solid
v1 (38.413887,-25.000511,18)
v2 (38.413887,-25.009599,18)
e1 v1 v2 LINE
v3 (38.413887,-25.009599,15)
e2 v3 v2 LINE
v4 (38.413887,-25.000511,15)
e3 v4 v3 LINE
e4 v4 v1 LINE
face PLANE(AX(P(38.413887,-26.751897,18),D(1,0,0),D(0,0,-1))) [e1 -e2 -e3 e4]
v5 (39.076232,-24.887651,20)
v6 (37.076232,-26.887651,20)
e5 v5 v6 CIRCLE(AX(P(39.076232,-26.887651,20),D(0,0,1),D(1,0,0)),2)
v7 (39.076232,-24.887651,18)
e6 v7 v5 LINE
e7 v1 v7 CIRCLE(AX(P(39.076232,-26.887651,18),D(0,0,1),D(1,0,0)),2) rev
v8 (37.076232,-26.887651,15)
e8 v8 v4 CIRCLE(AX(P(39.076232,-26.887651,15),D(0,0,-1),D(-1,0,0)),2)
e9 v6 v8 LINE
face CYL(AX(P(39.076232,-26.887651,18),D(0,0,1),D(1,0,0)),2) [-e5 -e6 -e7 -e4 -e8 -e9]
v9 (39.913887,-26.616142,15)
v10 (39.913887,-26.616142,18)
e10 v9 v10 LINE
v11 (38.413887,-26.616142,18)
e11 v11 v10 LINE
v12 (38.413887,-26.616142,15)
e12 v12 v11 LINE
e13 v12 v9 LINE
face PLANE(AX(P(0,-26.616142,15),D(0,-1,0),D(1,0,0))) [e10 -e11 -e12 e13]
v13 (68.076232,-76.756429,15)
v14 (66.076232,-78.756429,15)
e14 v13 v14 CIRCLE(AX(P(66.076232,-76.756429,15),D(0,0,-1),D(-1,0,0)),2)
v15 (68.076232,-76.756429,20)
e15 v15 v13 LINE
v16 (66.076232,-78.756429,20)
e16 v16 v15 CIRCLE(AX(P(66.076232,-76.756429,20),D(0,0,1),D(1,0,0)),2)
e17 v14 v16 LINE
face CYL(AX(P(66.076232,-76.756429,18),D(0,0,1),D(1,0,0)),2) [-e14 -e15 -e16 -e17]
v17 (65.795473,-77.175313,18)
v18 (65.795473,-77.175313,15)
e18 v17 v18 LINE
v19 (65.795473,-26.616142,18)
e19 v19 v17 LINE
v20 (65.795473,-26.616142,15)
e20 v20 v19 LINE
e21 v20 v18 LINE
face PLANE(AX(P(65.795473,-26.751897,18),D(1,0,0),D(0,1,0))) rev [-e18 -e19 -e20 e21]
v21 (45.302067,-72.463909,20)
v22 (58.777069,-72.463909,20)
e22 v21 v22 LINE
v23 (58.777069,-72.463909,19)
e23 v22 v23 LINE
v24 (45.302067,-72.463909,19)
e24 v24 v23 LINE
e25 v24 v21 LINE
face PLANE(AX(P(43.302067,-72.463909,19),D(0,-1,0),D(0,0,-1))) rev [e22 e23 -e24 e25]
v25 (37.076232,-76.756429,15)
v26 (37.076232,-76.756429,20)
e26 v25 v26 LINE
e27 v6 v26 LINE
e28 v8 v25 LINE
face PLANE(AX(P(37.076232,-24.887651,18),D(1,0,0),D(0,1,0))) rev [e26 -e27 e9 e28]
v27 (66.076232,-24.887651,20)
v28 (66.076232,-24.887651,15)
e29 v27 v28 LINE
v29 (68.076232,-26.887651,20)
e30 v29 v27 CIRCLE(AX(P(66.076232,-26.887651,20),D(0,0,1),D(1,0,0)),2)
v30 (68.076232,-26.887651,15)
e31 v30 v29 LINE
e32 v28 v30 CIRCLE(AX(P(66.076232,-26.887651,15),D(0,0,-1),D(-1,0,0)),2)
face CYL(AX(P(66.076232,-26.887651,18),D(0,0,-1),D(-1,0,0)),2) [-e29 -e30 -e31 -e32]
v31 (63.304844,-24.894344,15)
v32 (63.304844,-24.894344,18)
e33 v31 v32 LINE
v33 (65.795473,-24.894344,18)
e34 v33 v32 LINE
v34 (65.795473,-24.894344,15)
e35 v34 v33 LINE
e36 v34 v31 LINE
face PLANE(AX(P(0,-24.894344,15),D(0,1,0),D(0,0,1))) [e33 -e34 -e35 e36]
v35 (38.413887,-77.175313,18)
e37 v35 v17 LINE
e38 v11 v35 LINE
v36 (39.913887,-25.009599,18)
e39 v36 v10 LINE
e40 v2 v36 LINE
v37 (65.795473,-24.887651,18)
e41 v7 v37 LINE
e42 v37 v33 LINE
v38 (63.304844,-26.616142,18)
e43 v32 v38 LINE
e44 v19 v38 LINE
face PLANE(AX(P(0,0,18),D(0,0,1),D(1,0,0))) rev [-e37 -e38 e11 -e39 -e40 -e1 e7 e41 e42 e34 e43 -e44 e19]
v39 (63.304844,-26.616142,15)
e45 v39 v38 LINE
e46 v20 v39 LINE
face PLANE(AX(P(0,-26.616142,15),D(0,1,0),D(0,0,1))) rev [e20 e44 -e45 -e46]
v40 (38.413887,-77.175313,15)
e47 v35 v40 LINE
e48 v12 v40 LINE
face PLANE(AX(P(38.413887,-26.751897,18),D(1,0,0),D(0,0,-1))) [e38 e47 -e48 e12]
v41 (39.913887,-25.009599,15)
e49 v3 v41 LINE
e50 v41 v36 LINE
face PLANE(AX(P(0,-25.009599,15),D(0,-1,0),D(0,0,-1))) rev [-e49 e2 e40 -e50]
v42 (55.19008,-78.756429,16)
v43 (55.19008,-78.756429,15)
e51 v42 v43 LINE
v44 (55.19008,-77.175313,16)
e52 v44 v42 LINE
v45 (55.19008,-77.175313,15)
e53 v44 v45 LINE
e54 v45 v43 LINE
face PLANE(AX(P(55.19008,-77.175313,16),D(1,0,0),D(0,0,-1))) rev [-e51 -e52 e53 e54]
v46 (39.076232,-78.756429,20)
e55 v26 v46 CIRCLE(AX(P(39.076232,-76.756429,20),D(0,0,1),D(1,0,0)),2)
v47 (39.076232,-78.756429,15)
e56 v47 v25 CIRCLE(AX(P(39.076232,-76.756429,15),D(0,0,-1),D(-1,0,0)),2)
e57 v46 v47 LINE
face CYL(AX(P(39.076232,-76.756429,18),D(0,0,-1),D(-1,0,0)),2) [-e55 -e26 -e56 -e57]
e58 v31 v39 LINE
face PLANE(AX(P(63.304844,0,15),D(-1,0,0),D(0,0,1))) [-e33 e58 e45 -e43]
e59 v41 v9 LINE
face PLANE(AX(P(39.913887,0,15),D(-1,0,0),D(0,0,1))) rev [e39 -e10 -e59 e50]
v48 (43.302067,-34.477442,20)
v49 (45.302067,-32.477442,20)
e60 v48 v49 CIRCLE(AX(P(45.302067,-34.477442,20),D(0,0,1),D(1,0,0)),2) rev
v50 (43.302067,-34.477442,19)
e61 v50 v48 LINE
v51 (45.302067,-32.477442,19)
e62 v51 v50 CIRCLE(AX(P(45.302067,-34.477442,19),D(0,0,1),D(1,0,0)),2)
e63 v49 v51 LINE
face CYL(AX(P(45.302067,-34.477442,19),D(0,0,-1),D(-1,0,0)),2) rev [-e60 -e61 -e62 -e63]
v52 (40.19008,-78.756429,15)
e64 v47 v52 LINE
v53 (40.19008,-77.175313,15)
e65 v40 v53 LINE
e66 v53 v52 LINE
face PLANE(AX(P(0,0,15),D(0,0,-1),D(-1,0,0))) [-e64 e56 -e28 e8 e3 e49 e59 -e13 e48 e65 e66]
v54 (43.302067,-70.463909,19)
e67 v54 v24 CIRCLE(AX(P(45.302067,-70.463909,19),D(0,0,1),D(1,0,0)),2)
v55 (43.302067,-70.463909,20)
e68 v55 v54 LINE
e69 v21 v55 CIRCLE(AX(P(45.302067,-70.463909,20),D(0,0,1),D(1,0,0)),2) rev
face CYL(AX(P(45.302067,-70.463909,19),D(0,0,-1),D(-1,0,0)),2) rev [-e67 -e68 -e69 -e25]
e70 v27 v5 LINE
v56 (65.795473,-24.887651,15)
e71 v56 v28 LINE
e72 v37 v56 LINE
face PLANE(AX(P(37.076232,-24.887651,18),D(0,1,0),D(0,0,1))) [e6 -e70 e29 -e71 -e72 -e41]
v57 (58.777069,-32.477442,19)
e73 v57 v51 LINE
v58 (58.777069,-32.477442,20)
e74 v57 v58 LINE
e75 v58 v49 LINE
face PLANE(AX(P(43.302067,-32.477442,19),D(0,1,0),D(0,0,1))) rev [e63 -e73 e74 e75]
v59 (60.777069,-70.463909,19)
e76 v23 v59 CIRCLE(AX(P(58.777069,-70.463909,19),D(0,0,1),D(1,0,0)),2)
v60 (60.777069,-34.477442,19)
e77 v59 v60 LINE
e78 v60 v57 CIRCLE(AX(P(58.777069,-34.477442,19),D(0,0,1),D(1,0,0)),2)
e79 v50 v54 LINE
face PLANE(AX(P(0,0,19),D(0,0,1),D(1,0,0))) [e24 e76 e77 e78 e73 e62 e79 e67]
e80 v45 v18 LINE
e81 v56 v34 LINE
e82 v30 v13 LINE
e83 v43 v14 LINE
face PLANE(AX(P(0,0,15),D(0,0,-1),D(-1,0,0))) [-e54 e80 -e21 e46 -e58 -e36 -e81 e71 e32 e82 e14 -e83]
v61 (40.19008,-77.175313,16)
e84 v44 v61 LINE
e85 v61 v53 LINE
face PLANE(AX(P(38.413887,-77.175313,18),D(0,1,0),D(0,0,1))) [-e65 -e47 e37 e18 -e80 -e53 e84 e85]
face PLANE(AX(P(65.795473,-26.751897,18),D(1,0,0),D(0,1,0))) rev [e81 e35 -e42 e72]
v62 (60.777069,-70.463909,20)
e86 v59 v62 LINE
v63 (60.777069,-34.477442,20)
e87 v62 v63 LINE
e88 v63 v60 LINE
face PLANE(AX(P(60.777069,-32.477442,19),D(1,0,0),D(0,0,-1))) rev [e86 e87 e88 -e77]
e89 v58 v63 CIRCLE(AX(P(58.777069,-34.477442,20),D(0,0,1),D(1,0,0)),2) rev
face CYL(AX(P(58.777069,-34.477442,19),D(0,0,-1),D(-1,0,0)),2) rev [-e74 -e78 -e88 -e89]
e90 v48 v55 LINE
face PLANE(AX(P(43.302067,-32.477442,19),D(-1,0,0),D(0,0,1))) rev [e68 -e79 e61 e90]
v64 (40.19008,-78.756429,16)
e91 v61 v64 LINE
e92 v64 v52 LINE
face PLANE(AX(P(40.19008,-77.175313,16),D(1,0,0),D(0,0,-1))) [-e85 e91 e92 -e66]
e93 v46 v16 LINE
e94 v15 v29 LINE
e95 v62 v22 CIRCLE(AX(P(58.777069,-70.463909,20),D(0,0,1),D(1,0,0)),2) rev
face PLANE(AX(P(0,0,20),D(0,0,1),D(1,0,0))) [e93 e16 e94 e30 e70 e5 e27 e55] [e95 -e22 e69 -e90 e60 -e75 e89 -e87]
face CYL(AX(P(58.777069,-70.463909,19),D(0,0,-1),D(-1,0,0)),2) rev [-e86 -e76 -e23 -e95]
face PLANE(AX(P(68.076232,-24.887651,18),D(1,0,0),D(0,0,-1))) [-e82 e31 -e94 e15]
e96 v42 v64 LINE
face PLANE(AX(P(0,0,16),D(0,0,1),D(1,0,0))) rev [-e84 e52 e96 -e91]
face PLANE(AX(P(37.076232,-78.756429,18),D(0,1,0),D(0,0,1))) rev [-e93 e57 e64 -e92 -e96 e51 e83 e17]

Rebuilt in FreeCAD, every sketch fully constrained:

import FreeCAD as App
import Part
import Sketcher

V = App.Vector
Q = App.Units.Quantity


def edges_at(feature, points):
    """Names of the edges that pass closest to the given points."""
    edges = feature.Shape.Edges
    near = lambda p: min(range(len(edges)), key=lambda i: edges[i].distToShape(Part.Vertex(*p))[0])
    return sorted({f"Edge{near(p) + 1}" for p in points})


def add_polygon(sketch, points):
    """Adds a closed chain of lines whose ends are joined by coincident constraints."""
    first, n = sketch.GeometryCount, len(points)
    for a, b in zip(points, points[1:] + points[:1]):
        sketch.addGeometry(Part.LineSegment(App.Vector(*a, 0), App.Vector(*b, 0)), False)
    for i in range(n):
        sketch.addConstraint(Sketcher.Constraint("Coincident", first + i, 2, first + (i + 1) % n, 1))

doc = App.newDocument("Part")
body = doc.addObject("PartDesign::Body", "Body")

sketch1 = body.newObject("Sketcher::SketchObject", "Sketch")
sketch1.AttachmentSupport = (doc.getObject("XY_Plane"), [""])
sketch1.MapMode = "FlatFace"
sketch1.AttachmentOffset = App.Placement(V(0, 0, 15), App.Rotation())
add_polygon(sketch1, [(37, -25), (37, -79), (68, -79), (68, -25)])
add_polygon(sketch1, [(66, -77), (38, -77), (38, -27), (66, -27)])
sketch1.addConstraint([
    Sketcher.Constraint("Vertical", 0),
    Sketcher.Constraint("Horizontal", 1),
    Sketcher.Constraint("Vertical", 2),
    Sketcher.Constraint("Horizontal", 3),
    Sketcher.Constraint("Horizontal", 4),
    Sketcher.Constraint("Vertical", 5),
    Sketcher.Constraint("Horizontal", 6),
    Sketcher.Constraint("Vertical", 7),
    Sketcher.Constraint("DistanceX", 1, 1, 1, 2, Q("31 mm")),
    Sketcher.Constraint("DistanceX", 4, 2, 4, 1, Q("27.381586 mm")),
    Sketcher.Constraint("DistanceY", 0, 2, 0, 1, Q("53.868777 mm")),
    Sketcher.Constraint("DistanceY", 5, 1, 5, 2, Q("50.423416 mm")),
    Sketcher.Constraint("DistanceX", -1, 1, 0, 2, Q("37.076232 mm")),
    Sketcher.Constraint("DistanceY", 0, 2, -1, 1, Q("78.756429 mm")),
    Sketcher.Constraint("DistanceY", 4, 2, 3, 2, Q("52.287662 mm")),
    Sketcher.Constraint("DistanceX", 6, 2, 2, 2, Q("2.280759 mm")),
])
pad1 = body.newObject("PartDesign::Pad", "Pad")
pad1.Profile = sketch1
pad1.Length = 3

sketch2 = body.newObject("Sketcher::SketchObject", "Sketch001")
sketch2.AttachmentSupport = (doc.getObject("XY_Plane"), [""])
sketch2.MapMode = "FlatFace"
sketch2.AttachmentOffset = App.Placement(V(0, 0, 15), App.Rotation())
add_polygon(sketch2, [(55.2, -77.2), (55.2, -78.8), (40.2, -78.8), (40.2, -77.2)])
sketch2.addConstraint([
    Sketcher.Constraint("Vertical", 0),
    Sketcher.Constraint("Horizontal", 1),
    Sketcher.Constraint("Vertical", 2),
    Sketcher.Constraint("Horizontal", 3),
    Sketcher.Constraint("DistanceX", 1, 2, 1, 1, Q("15 mm")),
    Sketcher.Constraint("DistanceY", 0, 2, 0, 1, Q("1.581116 mm")),
    Sketcher.Constraint("DistanceX", -1, 1, 0, 2, Q("55.19008 mm")),
    Sketcher.Constraint("DistanceY", 0, 2, -1, 1, Q("78.756429 mm")),
])
pocket1 = body.newObject("PartDesign::Pocket", "Pocket")
pocket1.Profile = sketch2
pocket1.Length = 1
pocket1.Reversed = True

sketch3 = body.newObject("Sketcher::SketchObject", "Sketch002")
sketch3.AttachmentSupport = (doc.getObject("XY_Plane"), [""])
sketch3.MapMode = "FlatFace"
sketch3.AttachmentOffset = App.Placement(V(0, 0, 18), App.Rotation())
add_polygon(sketch3, [(37, -25), (37, -79), (68, -79), (68, -25)])
sketch3.addConstraint([
    Sketcher.Constraint("Vertical", 0),
    Sketcher.Constraint("Horizontal", 1),
    Sketcher.Constraint("Vertical", 2),
    Sketcher.Constraint("Horizontal", 3),
    Sketcher.Constraint("DistanceX", 1, 1, 1, 2, Q("31 mm")),
    Sketcher.Constraint("DistanceY", 0, 2, 0, 1, Q("53.868777 mm")),
    Sketcher.Constraint("DistanceX", -1, 1, 0, 2, Q("37.076232 mm")),
    Sketcher.Constraint("DistanceY", 0, 2, -1, 1, Q("78.756429 mm")),
])
pad2 = body.newObject("PartDesign::Pad", "Pad001")
pad2.Profile = sketch3
pad2.Length = 2

sketch4 = body.newObject("Sketcher::SketchObject", "Sketch003")
sketch4.AttachmentSupport = (doc.getObject("XY_Plane"), [""])
sketch4.MapMode = "FlatFace"
sketch4.AttachmentOffset = App.Placement(V(0, 0, 20), App.Rotation())
add_polygon(sketch4, [(43, -32), (43, -72), (61, -72), (61, -32)])
sketch4.addConstraint([
    Sketcher.Constraint("Vertical", 0),
    Sketcher.Constraint("Horizontal", 1),
    Sketcher.Constraint("Vertical", 2),
    Sketcher.Constraint("Horizontal", 3),
    Sketcher.Constraint("DistanceX", 1, 1, 1, 2, Q("17.475002 mm")),
    Sketcher.Constraint("DistanceY", 0, 2, 0, 1, Q("39.986468 mm")),
    Sketcher.Constraint("DistanceY", 0, 2, -1, 1, Q("72.463909 mm")),
    Sketcher.Constraint("DistanceX", -1, 1, 1, 2, Q("60.777069 mm")),
])
pocket2 = body.newObject("PartDesign::Pocket", "Pocket001")
pocket2.Profile = sketch4
pocket2.Length = 1
doc.recompute()

fillet = body.newObject("PartDesign::Fillet", "Fillet")
fillet.Base = (pocket2, edges_at(pocket2, [
    (37.076, -78.756, 17.5),
    (37.076, -24.888, 17.5),
    (68.076, -24.888, 17.5),
    (68.076, -78.756, 17.5),
]))
fillet.Radius = 2
doc.recompute()

fillet2 = body.newObject("PartDesign::Fillet", "Fillet001")
fillet2.Base = (fillet, edges_at(fillet, [
    (43.302, -72.464, 19.5),
    (43.302, -32.477, 19.5),
    (60.777, -32.477, 19.5),
    (60.777, -72.464, 19.5),
]))
fillet2.Radius = 2

sketch5 = body.newObject("Sketcher::SketchObject", "Sketch004")
sketch5.AttachmentSupport = (doc.getObject("XZ_Plane"), [""])
sketch5.MapMode = "FlatFace"
sketch5.AttachmentOffset = App.Placement(V(0, 0, 26.751897), App.Rotation())
add_polygon(sketch5, [(65.8, 15), (65.8, 18), (38.4, 18), (38.4, 15)])
sketch5.addConstraint([
    Sketcher.Constraint("Vertical", 0),
    Sketcher.Constraint("Horizontal", 1),
    Sketcher.Constraint("Vertical", 2),
    Sketcher.Constraint("Horizontal", 3),
    Sketcher.Constraint("DistanceY", 0, 1, 0, 2, Q("3 mm")),
    Sketcher.Constraint("DistanceY", -1, 1, 0, 2, Q("18 mm")),
    Sketcher.Constraint("DistanceX", 1, 2, 1, 1, Q("27.381586 mm")),
    Sketcher.Constraint("DistanceX", -1, 1, 0, 2, Q("65.795473 mm")),
])
pocket3 = body.newObject("PartDesign::Pocket", "Pocket002")
pocket3.Profile = sketch5
pocket3.Length = 2

sketch6 = body.newObject("Sketcher::SketchObject", "Sketch005")
sketch6.AttachmentSupport = (doc.getObject("XY_Plane"), [""])
sketch6.MapMode = "FlatFace"
sketch6.AttachmentOffset = App.Placement(V(0, 0, 18), App.Rotation())
add_polygon(sketch6, [(65.8, -24.9), (65.8, -26.6), (63.3, -26.6), (63.3, -24.9)])
add_polygon(sketch6, [(39.9, -25), (39.9, -26.6), (38.4, -26.6), (38.4, -25)])
sketch6.addConstraint([
    Sketcher.Constraint("Vertical", 0),
    Sketcher.Constraint("Horizontal", 1),
    Sketcher.Constraint("Vertical", 2),
    Sketcher.Constraint("Horizontal", 3),
    Sketcher.Constraint("Vertical", 4),
    Sketcher.Constraint("Horizontal", 5),
    Sketcher.Constraint("Vertical", 6),
    Sketcher.Constraint("Horizontal", 7),
    Sketcher.Constraint("Horizontal", 1, 2, 4, 2),
    Sketcher.Constraint("DistanceX", 5, 2, 5, 1, Q("1.5 mm")),
    Sketcher.Constraint("DistanceX", 1, 2, 1, 1, Q("2.490629 mm")),
    Sketcher.Constraint("DistanceY", 6, 2, -1, 1, Q("25.009599 mm")),
    Sketcher.Constraint("DistanceY", 0, 2, 0, 1, Q("1.721798 mm")),
    Sketcher.Constraint("DistanceY", 4, 2, 4, 1, Q("1.606543 mm")),
    Sketcher.Constraint("DistanceX", -1, 1, 0, 2, Q("65.795473 mm")),
    Sketcher.Constraint("DistanceX", -1, 1, 4, 2, Q("39.913887 mm")),
])
pad3 = body.newObject("PartDesign::Pad", "Pad002")
pad3.Profile = sketch6
pad3.Length = 3
pad3.Reversed = True

doc.recompute()
